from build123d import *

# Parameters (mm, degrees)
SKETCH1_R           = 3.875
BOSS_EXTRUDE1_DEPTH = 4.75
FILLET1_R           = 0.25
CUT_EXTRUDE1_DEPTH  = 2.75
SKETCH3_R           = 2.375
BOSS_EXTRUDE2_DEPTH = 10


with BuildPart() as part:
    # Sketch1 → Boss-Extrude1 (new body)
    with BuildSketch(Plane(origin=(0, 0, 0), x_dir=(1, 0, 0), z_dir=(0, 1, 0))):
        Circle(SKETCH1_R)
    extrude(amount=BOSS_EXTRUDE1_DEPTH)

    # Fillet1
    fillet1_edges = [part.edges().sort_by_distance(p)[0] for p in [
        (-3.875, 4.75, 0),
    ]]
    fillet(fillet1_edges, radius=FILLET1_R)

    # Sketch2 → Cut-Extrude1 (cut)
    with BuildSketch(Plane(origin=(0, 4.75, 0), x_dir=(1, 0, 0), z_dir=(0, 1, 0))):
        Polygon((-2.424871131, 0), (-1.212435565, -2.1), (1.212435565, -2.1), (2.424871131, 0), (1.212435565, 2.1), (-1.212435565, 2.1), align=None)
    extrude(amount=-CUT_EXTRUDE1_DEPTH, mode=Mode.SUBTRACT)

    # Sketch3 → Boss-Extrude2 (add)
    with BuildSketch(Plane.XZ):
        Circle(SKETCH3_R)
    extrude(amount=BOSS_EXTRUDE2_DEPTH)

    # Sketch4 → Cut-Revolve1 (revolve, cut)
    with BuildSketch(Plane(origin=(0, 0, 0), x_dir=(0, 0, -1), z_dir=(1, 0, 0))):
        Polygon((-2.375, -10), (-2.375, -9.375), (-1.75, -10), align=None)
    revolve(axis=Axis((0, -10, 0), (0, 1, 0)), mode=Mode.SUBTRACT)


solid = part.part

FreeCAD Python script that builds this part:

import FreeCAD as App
import Part
import Sketcher

V = App.Vector
Q = App.Units.Quantity


def edges_at(feature, points):
    """Names of the edges that pass closest to the given points."""
    edges = feature.Shape.Edges
    near = lambda p: min(range(len(edges)), key=lambda i: edges[i].distToShape(Part.Vertex(*p))[0])
    return sorted({f"Edge{near(p) + 1}" for p in points})


def add_polygon(sketch, points):
    """Adds a closed chain of lines whose ends are joined by coincident constraints."""
    first, n = sketch.GeometryCount, len(points)
    for a, b in zip(points, points[1:] + points[:1]):
        sketch.addGeometry(Part.LineSegment(App.Vector(*a, 0), App.Vector(*b, 0)), False)
    for i in range(n):
        sketch.addConstraint(Sketcher.Constraint("Coincident", first + i, 2, first + (i + 1) % n, 1))

doc = App.newDocument("Part")
body = doc.addObject("PartDesign::Body", "Body")

sketch1 = body.newObject("Sketcher::SketchObject", "Sketch")
sketch1.AttachmentSupport = (doc.getObject("XZ_Plane"), [""])
sketch1.MapMode = "FlatFace"
sketch1.addGeometry(Part.Circle(V(0, 0, 0), V(0, 0, 1), 3.875), False)
sketch1.addConstraint([
    Sketcher.Constraint("Coincident", 0, 3, -1, 1),
    Sketcher.Constraint("Diameter", 0, 7.75),
])
pad1 = body.newObject("PartDesign::Pad", "Pad")
pad1.Profile = sketch1
pad1.Length = 4.75
pad1.Reversed = True
doc.recompute()

fillet = body.newObject("PartDesign::Fillet", "Fillet")
fillet.Base = (pad1, edges_at(pad1, [(-3.875, 4.75, 0)]))
fillet.Radius = 0.25

sketch2 = body.newObject("Sketcher::SketchObject", "Sketch001")
sketch2.AttachmentSupport = (doc.getObject("XZ_Plane"), [""])
sketch2.MapMode = "FlatFace"
sketch2.AttachmentOffset = App.Placement(V(0, 0, -4.75), App.Rotation())
add_polygon(sketch2, [(-2.424871, 0), (-1.212436, 2.1), (1.212436, 2.1), (2.424871, 0), (1.212436, -2.1), (-1.212436, -2.1)])
sketch2.addConstraint([
    Sketcher.Constraint("Horizontal", 1),
    Sketcher.Constraint("Horizontal", 4),
    Sketcher.Constraint("Symmetric", 0, 2, 3, 2, -1, 1),
    Sketcher.Constraint("Symmetric", 2, 2, 5, 2, -1, 1),
    Sketcher.Constraint("PointOnObject", 2, 2, -1),
    Sketcher.Constraint("Parallel", 2, 5),
    Sketcher.Constraint("Vertical", 1, 2, 3, 2),
    Sketcher.Constraint("Angle", 0, Q("60 deg")),
    Sketcher.Constraint("DistanceY", -1, 1, 0, 2, 2.1),
    Sketcher.Constraint("DistanceX", 1, 1, 1, 2, 2.424871),
])
pocket1 = body.newObject("PartDesign::Pocket", "Pocket")
pocket1.Profile = sketch2
pocket1.Length = 2.75
pocket1.Reversed = True

sketch3 = body.newObject("Sketcher::SketchObject", "Sketch002")
sketch3.AttachmentSupport = (doc.getObject("XZ_Plane"), [""])
sketch3.MapMode = "FlatFace"
sketch3.addGeometry(Part.Circle(V(0, 0, 0), V(0, 0, 1), 2.375), False)
sketch3.addConstraint([
    Sketcher.Constraint("Coincident", 0, 3, -1, 1),
    Sketcher.Constraint("Diameter", 0, 4.75),
])
pad2 = body.newObject("PartDesign::Pad", "Pad001")
pad2.Profile = sketch3
pad2.Length = 10

sketch4 = body.newObject("Sketcher::SketchObject", "Sketch003")
sketch4.AttachmentSupport = (doc.getObject("YZ_Plane"), [""])
sketch4.MapMode = "FlatFace"
add_polygon(sketch4, [(-9.375, 2.375), (-10, 2.375), (-10, 1.75)])
sketch4.addConstraint([
    Sketcher.Constraint("Horizontal", 0),
    Sketcher.Constraint("Vertical", 1),
    Sketcher.Constraint("Equal", 0, 1),
    Sketcher.Constraint("DistanceX", 0, 2, -1, 1, 10.0),
    Sketcher.Constraint("DistanceX", 0, 2, 0, 1, 0.625),
    Sketcher.Constraint("DistanceY", -1, 1, 1, 2, 1.75),
])
groove = body.newObject("PartDesign::Groove", "Groove")
groove.Profile = sketch4
groove.ReferenceAxis = (sketch4, ["H_Axis"])
groove.Angle = 360

doc.recompute()
